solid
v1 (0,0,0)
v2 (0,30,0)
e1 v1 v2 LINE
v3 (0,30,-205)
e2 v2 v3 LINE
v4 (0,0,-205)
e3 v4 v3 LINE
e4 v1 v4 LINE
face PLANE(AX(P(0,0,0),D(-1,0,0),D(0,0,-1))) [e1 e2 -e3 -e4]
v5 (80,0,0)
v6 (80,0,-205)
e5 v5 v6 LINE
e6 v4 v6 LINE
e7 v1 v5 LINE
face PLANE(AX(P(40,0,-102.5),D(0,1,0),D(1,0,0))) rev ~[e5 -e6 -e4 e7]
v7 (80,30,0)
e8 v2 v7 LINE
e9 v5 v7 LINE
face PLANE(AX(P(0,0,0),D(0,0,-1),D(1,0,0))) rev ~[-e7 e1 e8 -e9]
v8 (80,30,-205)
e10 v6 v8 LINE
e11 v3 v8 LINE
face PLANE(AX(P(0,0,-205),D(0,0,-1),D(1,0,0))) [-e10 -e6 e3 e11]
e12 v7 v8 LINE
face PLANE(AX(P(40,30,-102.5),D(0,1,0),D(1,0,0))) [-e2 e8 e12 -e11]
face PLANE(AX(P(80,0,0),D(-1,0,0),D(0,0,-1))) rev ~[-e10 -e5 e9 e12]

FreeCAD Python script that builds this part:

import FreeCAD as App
import Part
import Sketcher

V = App.Vector


def add_polygon(sketch, points):
    """Adds a closed chain of lines whose ends are joined by coincident constraints."""
    first, n = sketch.GeometryCount, len(points)
    for a, b in zip(points, points[1:] + points[:1]):
        sketch.addGeometry(Part.LineSegment(App.Vector(*a, 0), App.Vector(*b, 0)), False)
    for i in range(n):
        sketch.addConstraint(Sketcher.Constraint("Coincident", first + i, 2, first + (i + 1) % n, 1))

doc = App.newDocument("Part")
body = doc.addObject("PartDesign::Body", "Body")

# Sketch on XZ plane
sketch1 = body.newObject("Sketcher::SketchObject", "Sketch")
sketch1.AttachmentSupport = (doc.getObject("XZ_Plane"), [""])
sketch1.MapMode = "FlatFace"
add_polygon(sketch1, [(0, -205), (0, 0), (80, 0), (80, -205)])  # lines 0-3
sketch1.addConstraint([
    Sketcher.Constraint("Vertical", 0),
    Sketcher.Constraint("Horizontal", 1),
    Sketcher.Constraint("Vertical", 2),
    Sketcher.Constraint("Horizontal", 3),
    Sketcher.Constraint("Coincident", 0, 2, -1, 1),
    Sketcher.Constraint("DistanceX", 1, 1, 1, 2, 80.0),
    Sketcher.Constraint("DistanceY", 0, 1, 0, 2, 205.0),
])
pad1 = body.newObject("PartDesign::Pad", "Pad")
pad1.Profile = sketch1
pad1.Length = 30
pad1.Reversed = True

doc.recompute()
